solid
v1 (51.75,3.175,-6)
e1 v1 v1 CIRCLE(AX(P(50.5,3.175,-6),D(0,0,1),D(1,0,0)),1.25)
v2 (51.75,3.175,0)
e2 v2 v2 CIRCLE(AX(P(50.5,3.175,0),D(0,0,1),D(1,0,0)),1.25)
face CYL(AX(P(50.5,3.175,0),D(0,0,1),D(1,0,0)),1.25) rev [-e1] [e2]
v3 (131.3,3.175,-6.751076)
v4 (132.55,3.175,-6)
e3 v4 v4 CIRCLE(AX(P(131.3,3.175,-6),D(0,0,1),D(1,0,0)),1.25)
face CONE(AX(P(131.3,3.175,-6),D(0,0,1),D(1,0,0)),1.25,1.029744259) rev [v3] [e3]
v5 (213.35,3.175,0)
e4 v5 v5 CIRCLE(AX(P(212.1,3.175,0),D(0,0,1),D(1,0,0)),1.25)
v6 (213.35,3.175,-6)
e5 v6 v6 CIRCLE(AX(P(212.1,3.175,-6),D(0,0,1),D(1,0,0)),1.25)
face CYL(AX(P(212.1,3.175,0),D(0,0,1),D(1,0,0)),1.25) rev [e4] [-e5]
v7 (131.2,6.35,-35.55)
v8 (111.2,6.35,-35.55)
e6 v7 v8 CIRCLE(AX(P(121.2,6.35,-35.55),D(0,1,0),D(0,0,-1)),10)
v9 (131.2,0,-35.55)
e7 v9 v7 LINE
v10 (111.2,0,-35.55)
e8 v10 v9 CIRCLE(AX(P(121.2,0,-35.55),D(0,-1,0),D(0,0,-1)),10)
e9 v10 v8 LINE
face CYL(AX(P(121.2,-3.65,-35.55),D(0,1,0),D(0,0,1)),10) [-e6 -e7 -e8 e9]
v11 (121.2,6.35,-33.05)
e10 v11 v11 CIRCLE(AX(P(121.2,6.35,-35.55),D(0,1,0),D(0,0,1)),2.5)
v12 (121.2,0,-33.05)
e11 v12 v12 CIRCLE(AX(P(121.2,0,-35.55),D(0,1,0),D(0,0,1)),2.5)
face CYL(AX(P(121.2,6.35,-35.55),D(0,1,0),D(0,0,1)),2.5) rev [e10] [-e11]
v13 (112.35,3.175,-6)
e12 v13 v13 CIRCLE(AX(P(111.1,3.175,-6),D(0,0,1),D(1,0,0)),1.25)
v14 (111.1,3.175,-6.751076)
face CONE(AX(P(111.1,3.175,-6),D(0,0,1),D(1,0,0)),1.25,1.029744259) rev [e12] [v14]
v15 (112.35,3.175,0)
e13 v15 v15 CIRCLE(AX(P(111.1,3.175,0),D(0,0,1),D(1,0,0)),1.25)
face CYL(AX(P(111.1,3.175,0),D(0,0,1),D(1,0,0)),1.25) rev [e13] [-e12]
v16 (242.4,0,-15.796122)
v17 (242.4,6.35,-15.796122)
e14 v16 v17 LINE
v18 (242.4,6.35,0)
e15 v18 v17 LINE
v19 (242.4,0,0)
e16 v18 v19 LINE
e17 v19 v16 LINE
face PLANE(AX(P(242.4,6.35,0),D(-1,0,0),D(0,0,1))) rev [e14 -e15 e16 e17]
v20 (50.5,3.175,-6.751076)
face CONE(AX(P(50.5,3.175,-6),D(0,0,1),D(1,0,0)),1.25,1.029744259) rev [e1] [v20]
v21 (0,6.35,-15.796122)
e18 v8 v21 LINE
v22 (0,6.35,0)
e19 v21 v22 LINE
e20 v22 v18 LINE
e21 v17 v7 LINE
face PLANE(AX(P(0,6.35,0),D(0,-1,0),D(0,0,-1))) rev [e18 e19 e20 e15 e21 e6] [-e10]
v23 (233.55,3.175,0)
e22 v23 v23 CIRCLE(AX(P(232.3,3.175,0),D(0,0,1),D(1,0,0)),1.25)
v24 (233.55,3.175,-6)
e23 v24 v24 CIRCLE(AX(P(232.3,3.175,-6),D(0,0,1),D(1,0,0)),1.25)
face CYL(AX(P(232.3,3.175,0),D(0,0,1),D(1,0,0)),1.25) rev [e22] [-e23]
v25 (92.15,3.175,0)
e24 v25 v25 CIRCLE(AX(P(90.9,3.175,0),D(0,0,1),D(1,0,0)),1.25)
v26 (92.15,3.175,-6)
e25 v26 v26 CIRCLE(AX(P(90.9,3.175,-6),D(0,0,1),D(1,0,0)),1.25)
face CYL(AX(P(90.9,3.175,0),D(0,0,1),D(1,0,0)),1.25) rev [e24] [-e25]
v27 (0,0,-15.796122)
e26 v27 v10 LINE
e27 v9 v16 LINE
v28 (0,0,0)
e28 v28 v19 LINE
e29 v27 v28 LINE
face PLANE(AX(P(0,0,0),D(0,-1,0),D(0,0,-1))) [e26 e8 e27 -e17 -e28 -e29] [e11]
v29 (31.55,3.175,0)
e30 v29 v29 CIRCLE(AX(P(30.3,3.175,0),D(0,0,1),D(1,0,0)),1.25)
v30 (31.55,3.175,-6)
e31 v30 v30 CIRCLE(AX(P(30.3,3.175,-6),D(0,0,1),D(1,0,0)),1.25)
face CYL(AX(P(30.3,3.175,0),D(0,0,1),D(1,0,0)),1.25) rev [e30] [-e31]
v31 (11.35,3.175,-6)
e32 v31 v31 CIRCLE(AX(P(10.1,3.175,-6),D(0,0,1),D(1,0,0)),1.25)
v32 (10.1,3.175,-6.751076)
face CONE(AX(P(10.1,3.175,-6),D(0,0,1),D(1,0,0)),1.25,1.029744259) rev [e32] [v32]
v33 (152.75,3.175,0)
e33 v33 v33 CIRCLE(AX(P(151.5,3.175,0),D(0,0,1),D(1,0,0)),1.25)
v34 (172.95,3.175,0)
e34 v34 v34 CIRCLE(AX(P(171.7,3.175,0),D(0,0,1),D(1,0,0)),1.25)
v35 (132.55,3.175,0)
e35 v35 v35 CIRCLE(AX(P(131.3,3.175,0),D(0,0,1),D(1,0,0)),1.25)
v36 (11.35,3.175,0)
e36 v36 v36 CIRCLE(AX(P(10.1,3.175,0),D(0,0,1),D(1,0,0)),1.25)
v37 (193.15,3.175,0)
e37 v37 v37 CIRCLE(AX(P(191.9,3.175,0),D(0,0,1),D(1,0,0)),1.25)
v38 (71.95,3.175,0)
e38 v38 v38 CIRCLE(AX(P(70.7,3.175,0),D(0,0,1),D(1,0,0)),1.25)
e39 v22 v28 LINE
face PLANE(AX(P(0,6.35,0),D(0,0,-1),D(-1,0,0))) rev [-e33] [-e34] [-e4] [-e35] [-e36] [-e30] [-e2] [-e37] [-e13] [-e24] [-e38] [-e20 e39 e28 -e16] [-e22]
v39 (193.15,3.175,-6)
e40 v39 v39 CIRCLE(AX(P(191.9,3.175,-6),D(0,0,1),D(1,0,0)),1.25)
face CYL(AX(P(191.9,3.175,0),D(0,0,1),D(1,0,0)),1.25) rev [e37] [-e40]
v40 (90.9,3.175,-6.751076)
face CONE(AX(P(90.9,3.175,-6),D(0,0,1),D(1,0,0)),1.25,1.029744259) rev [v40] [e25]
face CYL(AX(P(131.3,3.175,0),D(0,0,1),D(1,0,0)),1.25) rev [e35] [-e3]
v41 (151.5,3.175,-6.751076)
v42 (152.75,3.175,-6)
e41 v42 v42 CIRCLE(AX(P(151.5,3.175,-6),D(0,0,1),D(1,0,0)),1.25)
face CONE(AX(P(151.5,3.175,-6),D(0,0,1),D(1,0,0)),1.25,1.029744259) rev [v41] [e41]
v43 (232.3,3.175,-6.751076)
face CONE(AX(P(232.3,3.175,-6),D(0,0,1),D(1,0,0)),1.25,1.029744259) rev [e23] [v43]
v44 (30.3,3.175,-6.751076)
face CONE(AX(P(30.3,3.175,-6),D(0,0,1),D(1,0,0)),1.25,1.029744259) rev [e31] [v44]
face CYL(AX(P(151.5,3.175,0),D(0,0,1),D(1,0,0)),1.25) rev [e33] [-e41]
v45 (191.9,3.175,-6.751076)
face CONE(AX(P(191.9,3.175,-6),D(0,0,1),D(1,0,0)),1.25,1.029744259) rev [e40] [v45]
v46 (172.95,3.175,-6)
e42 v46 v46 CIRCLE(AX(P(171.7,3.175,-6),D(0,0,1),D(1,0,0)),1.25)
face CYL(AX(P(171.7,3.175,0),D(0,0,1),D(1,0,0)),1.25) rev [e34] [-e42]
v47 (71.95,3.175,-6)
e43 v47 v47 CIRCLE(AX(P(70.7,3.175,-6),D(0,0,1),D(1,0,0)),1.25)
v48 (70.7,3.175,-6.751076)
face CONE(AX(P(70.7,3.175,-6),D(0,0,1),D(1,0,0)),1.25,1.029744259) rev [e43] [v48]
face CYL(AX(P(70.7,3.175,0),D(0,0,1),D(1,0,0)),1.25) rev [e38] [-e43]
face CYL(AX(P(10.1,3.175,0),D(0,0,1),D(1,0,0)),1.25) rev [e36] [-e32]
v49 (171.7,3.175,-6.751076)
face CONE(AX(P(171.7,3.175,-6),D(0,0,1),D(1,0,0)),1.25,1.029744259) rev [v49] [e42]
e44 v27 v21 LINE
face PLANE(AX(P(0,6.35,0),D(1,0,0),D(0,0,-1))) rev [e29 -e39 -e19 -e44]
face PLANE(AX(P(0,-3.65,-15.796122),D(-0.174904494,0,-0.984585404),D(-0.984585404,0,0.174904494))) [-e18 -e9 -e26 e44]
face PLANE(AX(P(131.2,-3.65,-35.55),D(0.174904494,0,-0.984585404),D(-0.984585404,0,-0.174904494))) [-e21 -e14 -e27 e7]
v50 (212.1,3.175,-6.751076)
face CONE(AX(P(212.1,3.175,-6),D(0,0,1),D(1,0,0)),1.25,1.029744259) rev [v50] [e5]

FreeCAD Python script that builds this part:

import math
import FreeCAD as App
import Part
import Sketcher
from FreeCAD import Vector
Q = App.Units.Quantity


def add_polygon(sketch, points):
    """Adds a closed chain of lines whose ends are joined by coincident constraints."""
    first, n = sketch.GeometryCount, len(points)
    for a, b in zip(points, points[1:] + points[:1]):
        sketch.addGeometry(Part.LineSegment(App.Vector(*a, 0), App.Vector(*b, 0)), False)
    for i in range(n):
        sketch.addConstraint(Sketcher.Constraint("Coincident", first + i, 2, first + (i + 1) % n, 1))

doc = App.newDocument("Part")
body = doc.addObject("PartDesign::Body", "Body")

# Sketch on XZ plane
sketch1 = doc.addObject("Sketcher::SketchObject", "Sketch")
body.addObject(sketch1)
sketch1.AttachmentSupport = (doc.XZ_Plane, [""])
sketch1.MapMode = "FlatFace"
add_polygon(sketch1, [(0, -71), (0, 0), (242, 0), (242, -71)])  # lines 0-3
sketch1.addConstraint([
    Sketcher.Constraint("Vertical", 0),
    Sketcher.Constraint("Horizontal", 1),
    Sketcher.Constraint("Vertical", 2),
    Sketcher.Constraint("Horizontal", 3),
    Sketcher.Constraint("Coincident", 0, 2, -1, 1),
    Sketcher.Constraint("DistanceX", 1, 1, 1, 2, Q("242.4 mm")),
    Sketcher.Constraint("DistanceY", 0, 1, 0, 2, Q("71.1 mm")),
])
pad1 = doc.addObject("PartDesign::Pad", "Pad")
body.addObject(pad1)
pad1.Profile = sketch1
pad1.Length = 6.35
pad1.Reversed = True

# Sketch on XZ plane
sketch2 = doc.addObject("Sketcher::SketchObject", "Sketch001")
body.addObject(sketch2)
sketch2.AttachmentSupport = (doc.XZ_Plane, [""])
sketch2.MapMode = "FlatFace"
sketch2.AttachmentOffset = App.Placement(Vector(0, 0, -6.35), App.Rotation())
add_polygon(sketch2, [(-26, -97), (-26, 26), (269, 26), (269, -97)])  # lines 0-3
sketch2.addGeometry(Part.LineSegment(Vector(242, 0, 0), Vector(0, 0, 0)), False)  # 4
sketch2.addGeometry(Part.LineSegment(Vector(0, 0, 0), Vector(0, -16, 0)), False)  # 5
sketch2.addGeometry(Part.LineSegment(Vector(0, -16, 0), Vector(111, -36, 0)), False)  # 6
sketch2.addGeometry(Part.ArcOfCircle(Part.Circle(Vector(121, -36, 0), Vector(0, 0, 1), 10), math.radians(180), math.radians(360)), False)  # 7
sketch2.addGeometry(Part.LineSegment(Vector(131, -36, 0), Vector(242, -16, 0)), False)  # 8
sketch2.addGeometry(Part.LineSegment(Vector(242, -16, 0), Vector(242, 0, 0)), False)  # 9
sketch2.addConstraint([
    Sketcher.Constraint("Coincident", 4, 2, 5, 1),
    Sketcher.Constraint("Coincident", 5, 2, 6, 1),
    Sketcher.Constraint("Coincident", 6, 2, 7, 1),
    Sketcher.Constraint("Coincident", 7, 2, 8, 1),
    Sketcher.Constraint("Coincident", 8, 2, 9, 1),
    Sketcher.Constraint("Coincident", 9, 2, 4, 1),
    Sketcher.Constraint("Vertical", 0),
    Sketcher.Constraint("Horizontal", 1),
    Sketcher.Constraint("Vertical", 2),
    Sketcher.Constraint("Horizontal", 3),
    Sketcher.Constraint("Horizontal", 4),
    Sketcher.Constraint("Vertical", 5),
    Sketcher.Constraint("Vertical", 9),
    Sketcher.Constraint("Coincident", 4, 2, -1, 1),
    Sketcher.Constraint("Horizontal", 7, 3, 6, 2),
    Sketcher.Constraint("Horizontal", 6, 2, 7, 2),
    Sketcher.Constraint("Horizontal", 5, 2, 8, 2),
    Sketcher.Constraint("Equal", 6, 8),
    Sketcher.Constraint("Radius", 7, Q("10 mm")),
    Sketcher.Constraint("DistanceX", 4, 2, 4, 1, Q("242.4 mm")),
    Sketcher.Constraint("DistanceX", 1, 1, 1, 2, Q("294.938 mm")),
    Sketcher.Constraint("DistanceY", 0, 1, 0, 2, Q("123.638 mm")),
    Sketcher.Constraint("DistanceY", 7, 3, -1, 1, Q("35.55 mm")),
    Sketcher.Constraint("DistanceX", 0, 2, -1, 1, Q("26.269 mm")),
    Sketcher.Constraint("DistanceY", -1, 1, 0, 2, Q("26.269 mm")),
    Sketcher.Constraint("Distance", 6, Q("112.940939 mm")),
])
pocket1 = doc.addObject("PartDesign::Pocket", "Pocket")
body.addObject(pocket1)
pocket1.Profile = sketch2
pocket1.Length = 10
pocket1.Reversed = True

# Sketch on XY plane
sketch3 = doc.addObject("Sketcher::SketchObject", "Sketch002")
body.addObject(sketch3)
sketch3.AttachmentSupport = (doc.XY_Plane, [""])
sketch3.MapMode = "FlatFace"
sketch3.addGeometry([
    Part.Circle(Vector(232.3, 3.2, 0), Vector(0, 0, 1), 1.2),  # 0
    Part.Circle(Vector(10.1, 3.2, 0), Vector(0, 0, 1), 1.2),  # 1
    Part.Circle(Vector(30.3, 3.2, 0), Vector(0, 0, 1), 1.2),  # 2
    Part.Circle(Vector(50.5, 3.2, 0), Vector(0, 0, 1), 1.2),  # 3
    Part.Circle(Vector(70.7, 3.2, 0), Vector(0, 0, 1), 1.2),  # 4
    Part.Circle(Vector(90.9, 3.2, 0), Vector(0, 0, 1), 1.2),  # 5
    Part.Circle(Vector(111.1, 3.2, 0), Vector(0, 0, 1), 1.2),  # 6
    Part.Circle(Vector(131.3, 3.2, 0), Vector(0, 0, 1), 1.2),  # 7
    Part.Circle(Vector(151.5, 3.2, 0), Vector(0, 0, 1), 1.2),  # 8
    Part.Circle(Vector(171.7, 3.2, 0), Vector(0, 0, 1), 1.2),  # 9
    Part.Circle(Vector(191.9, 3.2, 0), Vector(0, 0, 1), 1.2),  # 10
    Part.Circle(Vector(212.1, 3.2, 0), Vector(0, 0, 1), 1.2),  # 11
], False)
sketch3.addConstraint([
    Sketcher.Constraint("Equal", 0, 1),
    Sketcher.Constraint("Equal", 1, 2),
    Sketcher.Constraint("Equal", 2, 3),
    Sketcher.Constraint("Equal", 3, 4),
    Sketcher.Constraint("Equal", 4, 5),
    Sketcher.Constraint("Equal", 5, 6),
    Sketcher.Constraint("Equal", 6, 7),
    Sketcher.Constraint("Equal", 7, 8),
    Sketcher.Constraint("Equal", 8, 9),
    Sketcher.Constraint("Equal", 9, 10),
    Sketcher.Constraint("Equal", 10, 11),
    Sketcher.Constraint("Horizontal", 0, 3, 1, 3),
    Sketcher.Constraint("Horizontal", 1, 3, 2, 3),
    Sketcher.Constraint("Horizontal", 2, 3, 3, 3),
    Sketcher.Constraint("Horizontal", 3, 3, 4, 3),
    Sketcher.Constraint("Horizontal", 4, 3, 5, 3),
    Sketcher.Constraint("Horizontal", 5, 3, 6, 3),
    Sketcher.Constraint("Horizontal", 6, 3, 7, 3),
    Sketcher.Constraint("Horizontal", 7, 3, 8, 3),
    Sketcher.Constraint("Horizontal", 8, 3, 9, 3),
    Sketcher.Constraint("Horizontal", 9, 3, 10, 3),
    Sketcher.Constraint("Horizontal", 10, 3, 11, 3),
    Sketcher.Constraint("Diameter", 0, Q("2.5 mm")),
    Sketcher.Constraint("DistanceX", 2, 3, 0, 3, Q("202 mm")),
    Sketcher.Constraint("DistanceX", 1, 3, 6, 3, Q("101 mm")),
    Sketcher.Constraint("DistanceX", 7, 3, 0, 3, Q("101 mm")),
    Sketcher.Constraint("DistanceX", -1, 1, 0, 3, Q("232.3 mm")),
    Sketcher.Constraint("DistanceX", -1, 1, 1, 3, Q("10.1 mm")),
    Sketcher.Constraint("DistanceX", -1, 1, 3, 3, Q("50.5 mm")),
    Sketcher.Constraint("DistanceX", -1, 1, 4, 3, Q("70.7 mm")),
    Sketcher.Constraint("DistanceX", -1, 1, 5, 3, Q("90.9 mm")),
    Sketcher.Constraint("DistanceX", -1, 1, 8, 3, Q("151.5 mm")),
    Sketcher.Constraint("DistanceX", -1, 1, 9, 3, Q("171.7 mm")),
    Sketcher.Constraint("DistanceX", -1, 1, 10, 3, Q("191.9 mm")),
    Sketcher.Constraint("DistanceX", -1, 1, 11, 3, Q("212.1 mm")),
    Sketcher.Constraint("DistanceY", -1, 1, 0, 3, Q("3.175 mm")),
])
doc.recompute()
hole = doc.addObject("PartDesign::Hole", "Hole")
body.addObject(hole)
hole.Profile = sketch3
hole.ThreadType = "None"
hole.Diameter = 2.5
hole.DepthType = "Dimension"
hole.Depth = 6
hole.DrillPoint = "Angled"
hole.DrillPointAngle = 118

# Sketch on XZ plane
sketch4 = doc.addObject("Sketcher::SketchObject", "Sketch003")
body.addObject(sketch4)
sketch4.AttachmentSupport = (doc.XZ_Plane, [""])
sketch4.MapMode = "FlatFace"
sketch4.AttachmentOffset = App.Placement(Vector(0, 0, -6.35), App.Rotation())
sketch4.addGeometry(Part.Circle(Vector(121.2, -35.5, 0), Vector(0, 0, 1), 2.5), False)
sketch4.addConstraint([
    Sketcher.Constraint("Diameter", 0, Q("5 mm")),
    Sketcher.Constraint("DistanceX", -1, 1, 0, 3, Q("121.2 mm")),
    Sketcher.Constraint("DistanceY", 0, 3, -1, 1, Q("35.55 mm")),
])
doc.recompute()
hole2 = doc.addObject("PartDesign::Hole", "Hole001")
body.addObject(hole2)
hole2.Profile = sketch4
hole2.ThreadType = "None"
hole2.Diameter = 5
hole2.DepthType = "ThroughAll"
hole2.Reversed = True

doc.recompute()
